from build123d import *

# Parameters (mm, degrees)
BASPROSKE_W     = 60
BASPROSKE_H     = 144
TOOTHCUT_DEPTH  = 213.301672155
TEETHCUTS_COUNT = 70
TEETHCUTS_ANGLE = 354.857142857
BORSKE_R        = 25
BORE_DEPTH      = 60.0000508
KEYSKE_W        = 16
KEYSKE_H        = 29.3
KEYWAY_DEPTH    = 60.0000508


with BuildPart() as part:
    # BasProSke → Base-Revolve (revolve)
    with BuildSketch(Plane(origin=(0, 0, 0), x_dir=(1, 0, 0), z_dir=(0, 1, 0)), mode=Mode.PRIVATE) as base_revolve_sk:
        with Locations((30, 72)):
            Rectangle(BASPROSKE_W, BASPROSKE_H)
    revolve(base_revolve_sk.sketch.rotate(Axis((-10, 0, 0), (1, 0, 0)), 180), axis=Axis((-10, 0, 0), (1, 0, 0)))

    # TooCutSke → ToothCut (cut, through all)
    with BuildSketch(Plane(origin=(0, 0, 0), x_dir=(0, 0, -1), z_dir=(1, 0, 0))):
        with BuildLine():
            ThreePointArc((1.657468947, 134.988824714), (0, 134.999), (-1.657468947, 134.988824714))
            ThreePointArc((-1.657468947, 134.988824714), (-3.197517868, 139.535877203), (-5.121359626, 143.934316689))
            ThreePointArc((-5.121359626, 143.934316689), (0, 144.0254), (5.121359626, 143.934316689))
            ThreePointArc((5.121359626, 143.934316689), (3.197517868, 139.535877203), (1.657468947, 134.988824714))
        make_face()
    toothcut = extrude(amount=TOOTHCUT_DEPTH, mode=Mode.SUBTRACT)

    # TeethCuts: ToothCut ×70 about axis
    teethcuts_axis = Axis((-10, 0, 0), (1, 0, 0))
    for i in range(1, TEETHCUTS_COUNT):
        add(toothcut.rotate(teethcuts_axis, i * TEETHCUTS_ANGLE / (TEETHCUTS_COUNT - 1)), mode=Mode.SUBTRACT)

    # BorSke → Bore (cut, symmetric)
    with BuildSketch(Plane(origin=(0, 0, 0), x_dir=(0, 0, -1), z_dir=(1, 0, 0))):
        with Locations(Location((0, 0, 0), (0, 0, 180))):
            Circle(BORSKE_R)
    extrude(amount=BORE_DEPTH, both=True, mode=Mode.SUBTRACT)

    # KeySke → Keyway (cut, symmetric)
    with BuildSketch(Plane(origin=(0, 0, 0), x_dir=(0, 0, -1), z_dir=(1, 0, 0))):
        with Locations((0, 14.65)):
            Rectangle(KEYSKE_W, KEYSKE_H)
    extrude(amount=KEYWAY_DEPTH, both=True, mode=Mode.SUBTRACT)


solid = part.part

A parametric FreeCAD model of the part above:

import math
import FreeCAD as App
import Part
import Sketcher

doc = App.newDocument("Part")
body = doc.addObject("PartDesign::Body", "Body")

sketch1 = doc.addObject("Sketcher::SketchObject", "Sketch")
body.addObject(sketch1)
sketch1.AttachmentSupport = (doc.XZ_Plane, [""])
sketch1.MapMode = "FlatFace"
sketch1.addGeometry([
    Part.LineSegment(App.Vector(0, -144, 0), App.Vector(0, 0, 0)),
    Part.LineSegment(App.Vector(0, 0, 0), App.Vector(60, 0, 0)),
    Part.LineSegment(App.Vector(60, 0, 0), App.Vector(60, -144, 0)),
    Part.LineSegment(App.Vector(60, -144, 0), App.Vector(0, -144, 0)),
], False)
sketch1.addConstraint([
    Sketcher.Constraint("Coincident", 0, 2, 1, 1),
    Sketcher.Constraint("Coincident", 1, 2, 2, 1),
    Sketcher.Constraint("Coincident", 2, 2, 3, 1),
    Sketcher.Constraint("Coincident", 3, 2, 0, 1),
    Sketcher.Constraint("Vertical", 0),
    Sketcher.Constraint("Horizontal", 1),
    Sketcher.Constraint("Vertical", 2),
    Sketcher.Constraint("Horizontal", 3),
    Sketcher.Constraint("Coincident", 0, 2, -1, 1),
    Sketcher.Constraint("DistanceX", 1, 1, 1, 2, 60.0),
    Sketcher.Constraint("DistanceY", 0, 1, 0, 2, 144.0),
])
revolution = doc.addObject("PartDesign::Revolution", "Revolution")
body.addObject(revolution)
revolution.Profile = sketch1
revolution.ReferenceAxis = (sketch1, ["H_Axis"])
revolution.Angle = 360

sketch2 = doc.addObject("Sketcher::SketchObject", "Sketch001")
body.addObject(sketch2)
sketch2.AttachmentSupport = (doc.YZ_Plane, [""])
sketch2.MapMode = "FlatFace"
sketch2.addGeometry([
    Part.ArcOfCircle(Part.Circle(App.Vector(0.000001, 0, 0), App.Vector(0, 0, 1), 134.998999), math.radians(-0.703475), math.radians(0.703475)),
    Part.ArcOfCircle(Part.Circle(App.Vector(119.314523, -55.419131, 0), App.Vector(0, 0, 1), 56), math.radians(63.919139), math.radians(73.745869)),
    Part.ArcOfCircle(Part.Circle(App.Vector(0, 0, 0), App.Vector(0, 0, 1), 144.0254), math.radians(-2.037794), math.radians(2.037794)),
    Part.ArcOfCircle(Part.Circle(App.Vector(119.314523, 55.419131, 0), App.Vector(0, 0, 1), 56), math.radians(-73.745869), math.radians(-63.919139)),
], False)
sketch2.addConstraint([
    Sketcher.Constraint("Coincident", 0, 1, 1, 2),
    Sketcher.Constraint("Coincident", 1, 1, 2, 1),
    Sketcher.Constraint("Coincident", 2, 2, 3, 2),
    Sketcher.Constraint("Coincident", 3, 1, 0, 2),
    Sketcher.Constraint("Coincident", 0, 3, -1, 1),
    Sketcher.Constraint("Coincident", 2, 3, -1, 1),
    Sketcher.Constraint("Equal", 1, 3),
    Sketcher.Constraint("Symmetric", 1, 3, 3, 3, -1),
    Sketcher.Constraint("Radius", 1, 56.0),
    Sketcher.Constraint("Radius", 0, 134.998999),
    Sketcher.Constraint("Radius", 2, 144.0254),
    Sketcher.Constraint("DistanceX", 1, 3, 0, 1, 15.674301),
    Sketcher.Constraint("DistanceY", 0, 1, 3, 3, 57.0766),
])
pocket1 = doc.addObject("PartDesign::Pocket", "Pocket")
body.addObject(pocket1)
pocket1.Profile = sketch2
pocket1.Type = "ThroughAll"
pocket1.Reversed = True
doc.recompute()

polarpattern = doc.addObject("PartDesign::PolarPattern", "PolarPattern")
body.addObject(polarpattern)
polarpattern.Originals = [pocket1]
polarpattern.Axis = (doc.X_Axis, [""])
polarpattern.Angle = 360
polarpattern.Occurrences = 70
body.Tip = polarpattern

sketch3 = doc.addObject("Sketcher::SketchObject", "Sketch002")
body.addObject(sketch3)
sketch3.AttachmentSupport = (doc.YZ_Plane, [""])
sketch3.MapMode = "FlatFace"
sketch3.addGeometry(Part.Circle(App.Vector(0, 0, 0), App.Vector(0, 0, 1), 25), False)
sketch3.addConstraint([
    Sketcher.Constraint("Coincident", 0, 3, -1, 1),
    Sketcher.Constraint("Diameter", 0, 50.0),
])
pocket2 = doc.addObject("PartDesign::Pocket", "Pocket001")
body.addObject(pocket2)
pocket2.Profile = sketch3
pocket2.Length = 120.000102
pocket2.Midplane = True

sketch4 = doc.addObject("Sketcher::SketchObject", "Sketch003")
body.addObject(sketch4)
sketch4.AttachmentSupport = (doc.YZ_Plane, [""])
sketch4.MapMode = "FlatFace"
sketch4.addGeometry([
    Part.LineSegment(App.Vector(29.3, 8, 0), App.Vector(0, 8, 0)),
    Part.LineSegment(App.Vector(0, 8, 0), App.Vector(0, -8, 0)),
    Part.LineSegment(App.Vector(0, -8, 0), App.Vector(29.3, -8, 0)),
    Part.LineSegment(App.Vector(29.3, -8, 0), App.Vector(29.3, 8, 0)),
], False)
sketch4.addConstraint([
    Sketcher.Constraint("Coincident", 0, 2, 1, 1),
    Sketcher.Constraint("Coincident", 1, 2, 2, 1),
    Sketcher.Constraint("Coincident", 2, 2, 3, 1),
    Sketcher.Constraint("Coincident", 3, 2, 0, 1),
    Sketcher.Constraint("Horizontal", 0),
    Sketcher.Constraint("Vertical", 1),
    Sketcher.Constraint("Horizontal", 2),
    Sketcher.Constraint("Vertical", 3),
    Sketcher.Constraint("Symmetric", 0, 2, 1, 2, -1, 1),
    Sketcher.Constraint("DistanceY", 1, 2, 1, 1, 16.0),
    Sketcher.Constraint("DistanceX", 0, 2, 0, 1, 29.3),
])
pocket3 = doc.addObject("PartDesign::Pocket", "Pocket002")
body.addObject(pocket3)
pocket3.Profile = sketch4
pocket3.Length = 120.000102
pocket3.Midplane = True

doc.recompute()
